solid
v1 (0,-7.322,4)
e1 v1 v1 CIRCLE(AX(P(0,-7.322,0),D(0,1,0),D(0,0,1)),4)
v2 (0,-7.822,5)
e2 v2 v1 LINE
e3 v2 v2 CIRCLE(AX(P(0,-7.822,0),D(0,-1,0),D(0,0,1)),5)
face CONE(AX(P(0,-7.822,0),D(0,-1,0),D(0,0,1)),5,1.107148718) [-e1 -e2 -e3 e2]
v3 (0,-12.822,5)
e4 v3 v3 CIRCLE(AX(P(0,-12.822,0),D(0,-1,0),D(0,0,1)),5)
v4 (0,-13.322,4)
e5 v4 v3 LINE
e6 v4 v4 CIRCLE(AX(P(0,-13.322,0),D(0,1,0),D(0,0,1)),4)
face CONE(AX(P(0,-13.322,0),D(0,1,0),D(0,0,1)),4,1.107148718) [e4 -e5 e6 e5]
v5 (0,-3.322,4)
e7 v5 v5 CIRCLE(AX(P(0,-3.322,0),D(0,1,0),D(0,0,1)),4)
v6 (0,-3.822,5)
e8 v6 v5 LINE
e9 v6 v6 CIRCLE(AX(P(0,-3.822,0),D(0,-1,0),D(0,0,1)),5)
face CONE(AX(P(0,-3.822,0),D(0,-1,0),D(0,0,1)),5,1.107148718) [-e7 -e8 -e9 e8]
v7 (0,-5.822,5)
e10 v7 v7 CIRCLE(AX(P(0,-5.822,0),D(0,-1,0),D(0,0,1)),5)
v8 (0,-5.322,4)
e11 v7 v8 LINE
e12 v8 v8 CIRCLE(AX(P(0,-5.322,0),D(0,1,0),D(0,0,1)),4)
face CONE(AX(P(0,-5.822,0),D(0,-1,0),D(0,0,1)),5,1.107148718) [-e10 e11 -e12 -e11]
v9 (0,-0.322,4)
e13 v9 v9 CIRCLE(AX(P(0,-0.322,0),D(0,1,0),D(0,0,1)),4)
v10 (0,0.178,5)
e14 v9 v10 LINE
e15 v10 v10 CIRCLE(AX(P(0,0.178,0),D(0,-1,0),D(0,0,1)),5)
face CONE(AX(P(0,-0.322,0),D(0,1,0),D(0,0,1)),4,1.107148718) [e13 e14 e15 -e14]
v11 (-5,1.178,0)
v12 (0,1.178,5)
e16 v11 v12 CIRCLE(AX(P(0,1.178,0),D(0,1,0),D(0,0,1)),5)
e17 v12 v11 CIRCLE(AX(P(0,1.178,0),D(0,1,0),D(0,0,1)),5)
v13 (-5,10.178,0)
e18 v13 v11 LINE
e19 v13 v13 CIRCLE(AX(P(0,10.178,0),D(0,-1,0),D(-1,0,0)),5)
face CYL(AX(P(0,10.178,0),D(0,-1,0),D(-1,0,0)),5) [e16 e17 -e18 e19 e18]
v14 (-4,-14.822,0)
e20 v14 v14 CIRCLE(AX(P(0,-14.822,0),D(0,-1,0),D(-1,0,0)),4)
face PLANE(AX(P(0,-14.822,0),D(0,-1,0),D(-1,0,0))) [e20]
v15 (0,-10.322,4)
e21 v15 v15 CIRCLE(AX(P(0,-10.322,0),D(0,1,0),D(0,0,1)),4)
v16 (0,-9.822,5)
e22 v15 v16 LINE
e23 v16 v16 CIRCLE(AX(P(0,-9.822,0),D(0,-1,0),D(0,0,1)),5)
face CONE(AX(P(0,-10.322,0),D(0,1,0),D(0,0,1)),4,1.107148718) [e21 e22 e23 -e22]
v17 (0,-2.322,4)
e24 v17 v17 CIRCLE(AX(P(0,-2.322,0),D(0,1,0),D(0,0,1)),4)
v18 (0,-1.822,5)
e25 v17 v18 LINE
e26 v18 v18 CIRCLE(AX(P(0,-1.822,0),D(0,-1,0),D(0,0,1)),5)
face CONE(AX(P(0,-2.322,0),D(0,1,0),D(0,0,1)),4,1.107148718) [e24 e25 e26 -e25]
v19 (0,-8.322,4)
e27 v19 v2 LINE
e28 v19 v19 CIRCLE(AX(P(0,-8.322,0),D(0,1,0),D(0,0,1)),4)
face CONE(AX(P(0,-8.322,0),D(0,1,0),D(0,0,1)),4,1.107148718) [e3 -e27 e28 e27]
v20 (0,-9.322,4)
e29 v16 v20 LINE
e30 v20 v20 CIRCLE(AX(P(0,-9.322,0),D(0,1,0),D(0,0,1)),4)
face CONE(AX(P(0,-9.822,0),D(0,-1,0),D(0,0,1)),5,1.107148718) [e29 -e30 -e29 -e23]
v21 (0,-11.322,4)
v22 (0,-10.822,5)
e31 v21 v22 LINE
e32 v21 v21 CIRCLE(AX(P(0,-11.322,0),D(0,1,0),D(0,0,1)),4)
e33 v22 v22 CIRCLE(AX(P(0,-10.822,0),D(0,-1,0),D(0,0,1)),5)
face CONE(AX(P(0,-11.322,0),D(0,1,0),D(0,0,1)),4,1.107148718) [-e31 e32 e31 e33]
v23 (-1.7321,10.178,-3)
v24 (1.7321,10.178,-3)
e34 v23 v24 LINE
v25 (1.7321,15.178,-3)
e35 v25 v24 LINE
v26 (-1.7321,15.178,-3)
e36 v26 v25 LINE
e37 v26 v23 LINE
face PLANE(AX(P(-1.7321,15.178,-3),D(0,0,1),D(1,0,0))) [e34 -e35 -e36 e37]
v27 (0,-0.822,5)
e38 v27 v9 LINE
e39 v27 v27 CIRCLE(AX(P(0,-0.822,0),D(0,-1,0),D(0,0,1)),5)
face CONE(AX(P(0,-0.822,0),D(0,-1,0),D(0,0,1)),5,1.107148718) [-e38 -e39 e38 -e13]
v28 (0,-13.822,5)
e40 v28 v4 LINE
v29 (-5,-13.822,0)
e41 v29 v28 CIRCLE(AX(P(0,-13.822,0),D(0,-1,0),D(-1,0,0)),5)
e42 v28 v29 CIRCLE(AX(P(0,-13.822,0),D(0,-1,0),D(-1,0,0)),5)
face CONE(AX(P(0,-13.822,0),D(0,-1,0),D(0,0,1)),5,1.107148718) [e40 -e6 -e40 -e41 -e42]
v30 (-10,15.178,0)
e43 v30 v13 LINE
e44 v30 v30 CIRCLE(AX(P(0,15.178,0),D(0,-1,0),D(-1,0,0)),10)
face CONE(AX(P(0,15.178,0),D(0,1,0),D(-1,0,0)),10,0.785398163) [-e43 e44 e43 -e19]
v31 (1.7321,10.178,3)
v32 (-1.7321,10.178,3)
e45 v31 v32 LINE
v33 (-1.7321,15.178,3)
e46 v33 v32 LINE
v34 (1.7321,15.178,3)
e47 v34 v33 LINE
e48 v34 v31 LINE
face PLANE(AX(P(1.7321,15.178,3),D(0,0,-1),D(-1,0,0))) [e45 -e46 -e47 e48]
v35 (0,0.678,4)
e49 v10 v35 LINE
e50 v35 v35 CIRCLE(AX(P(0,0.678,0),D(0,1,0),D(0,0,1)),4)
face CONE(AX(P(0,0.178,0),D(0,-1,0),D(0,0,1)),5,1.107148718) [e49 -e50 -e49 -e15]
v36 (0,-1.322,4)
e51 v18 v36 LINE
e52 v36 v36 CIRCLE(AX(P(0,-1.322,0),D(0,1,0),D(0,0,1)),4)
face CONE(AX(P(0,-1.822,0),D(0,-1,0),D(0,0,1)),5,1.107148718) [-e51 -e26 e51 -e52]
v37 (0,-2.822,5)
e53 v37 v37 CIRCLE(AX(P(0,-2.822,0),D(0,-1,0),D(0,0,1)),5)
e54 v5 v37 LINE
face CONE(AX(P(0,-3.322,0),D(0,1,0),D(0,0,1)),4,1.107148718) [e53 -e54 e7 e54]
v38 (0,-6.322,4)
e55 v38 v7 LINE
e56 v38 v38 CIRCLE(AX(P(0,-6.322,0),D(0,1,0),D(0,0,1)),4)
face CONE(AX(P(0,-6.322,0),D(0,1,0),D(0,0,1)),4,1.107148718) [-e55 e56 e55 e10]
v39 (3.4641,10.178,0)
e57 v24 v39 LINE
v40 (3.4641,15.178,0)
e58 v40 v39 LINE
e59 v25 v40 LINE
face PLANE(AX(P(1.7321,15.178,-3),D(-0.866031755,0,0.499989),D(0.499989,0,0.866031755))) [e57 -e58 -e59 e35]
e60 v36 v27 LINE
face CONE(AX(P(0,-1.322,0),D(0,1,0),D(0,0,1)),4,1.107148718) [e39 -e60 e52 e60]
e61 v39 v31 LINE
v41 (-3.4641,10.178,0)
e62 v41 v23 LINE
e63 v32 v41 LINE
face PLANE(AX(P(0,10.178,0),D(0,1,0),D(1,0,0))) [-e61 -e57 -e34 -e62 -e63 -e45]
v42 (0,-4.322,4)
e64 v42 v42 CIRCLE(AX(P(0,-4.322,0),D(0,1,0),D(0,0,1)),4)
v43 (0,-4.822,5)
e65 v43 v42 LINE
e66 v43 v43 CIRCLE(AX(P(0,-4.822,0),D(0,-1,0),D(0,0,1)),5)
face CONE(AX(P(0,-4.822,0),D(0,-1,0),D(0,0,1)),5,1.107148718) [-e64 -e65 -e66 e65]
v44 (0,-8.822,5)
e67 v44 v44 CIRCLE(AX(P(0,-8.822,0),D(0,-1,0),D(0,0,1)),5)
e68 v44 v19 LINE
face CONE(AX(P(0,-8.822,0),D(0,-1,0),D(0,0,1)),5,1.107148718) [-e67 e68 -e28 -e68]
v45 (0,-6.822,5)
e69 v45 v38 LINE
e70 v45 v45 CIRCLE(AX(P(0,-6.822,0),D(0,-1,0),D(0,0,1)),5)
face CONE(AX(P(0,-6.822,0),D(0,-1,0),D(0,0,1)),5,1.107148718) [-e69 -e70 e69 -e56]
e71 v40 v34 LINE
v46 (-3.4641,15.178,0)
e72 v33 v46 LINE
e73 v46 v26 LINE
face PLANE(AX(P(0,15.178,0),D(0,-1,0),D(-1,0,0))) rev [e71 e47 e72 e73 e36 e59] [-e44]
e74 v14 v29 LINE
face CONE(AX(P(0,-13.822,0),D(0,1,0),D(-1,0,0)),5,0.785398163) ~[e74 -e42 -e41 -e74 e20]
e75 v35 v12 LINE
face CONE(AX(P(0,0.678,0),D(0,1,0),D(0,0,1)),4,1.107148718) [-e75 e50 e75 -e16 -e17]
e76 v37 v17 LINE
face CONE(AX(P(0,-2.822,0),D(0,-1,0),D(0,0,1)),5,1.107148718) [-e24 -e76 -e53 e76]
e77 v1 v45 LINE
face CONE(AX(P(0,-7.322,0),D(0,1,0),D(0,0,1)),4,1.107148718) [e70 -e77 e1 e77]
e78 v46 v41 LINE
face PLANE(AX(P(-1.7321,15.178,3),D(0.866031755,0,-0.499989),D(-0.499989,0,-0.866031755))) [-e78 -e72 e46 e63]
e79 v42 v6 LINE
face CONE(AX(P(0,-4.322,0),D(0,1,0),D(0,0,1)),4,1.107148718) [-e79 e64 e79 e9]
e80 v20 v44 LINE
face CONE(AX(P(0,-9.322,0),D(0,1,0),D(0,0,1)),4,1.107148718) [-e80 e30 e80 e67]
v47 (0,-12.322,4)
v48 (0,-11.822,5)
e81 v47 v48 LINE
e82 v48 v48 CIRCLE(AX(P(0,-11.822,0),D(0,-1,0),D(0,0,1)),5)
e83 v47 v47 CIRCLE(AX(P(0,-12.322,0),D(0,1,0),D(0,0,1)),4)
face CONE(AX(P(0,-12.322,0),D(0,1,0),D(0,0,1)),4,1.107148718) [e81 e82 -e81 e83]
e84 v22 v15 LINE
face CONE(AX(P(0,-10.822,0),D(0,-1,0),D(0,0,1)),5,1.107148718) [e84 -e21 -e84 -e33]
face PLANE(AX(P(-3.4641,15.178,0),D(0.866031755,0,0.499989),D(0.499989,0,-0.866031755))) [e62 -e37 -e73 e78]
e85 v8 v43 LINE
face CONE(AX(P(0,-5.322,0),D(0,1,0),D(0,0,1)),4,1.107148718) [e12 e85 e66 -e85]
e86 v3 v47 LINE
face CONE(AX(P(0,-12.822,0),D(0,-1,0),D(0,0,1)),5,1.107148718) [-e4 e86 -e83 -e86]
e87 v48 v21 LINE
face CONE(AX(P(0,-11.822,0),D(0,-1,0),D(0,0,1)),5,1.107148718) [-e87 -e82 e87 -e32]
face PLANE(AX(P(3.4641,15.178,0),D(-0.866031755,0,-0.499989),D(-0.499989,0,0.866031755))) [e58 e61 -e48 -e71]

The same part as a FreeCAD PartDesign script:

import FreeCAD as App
import Part
import Sketcher

V = App.Vector
Q = App.Units.Quantity


def edges_at(feature, points):
    """Names of the edges that pass closest to the given points."""
    edges = feature.Shape.Edges
    near = lambda p: min(range(len(edges)), key=lambda i: edges[i].distToShape(Part.Vertex(*p))[0])
    return sorted({f"Edge{near(p) + 1}" for p in points})

doc = App.newDocument("Part")
params = doc.addObject("Spreadsheet::Sheet", "Params")
for row, (alias, value) in enumerate([
    ("sketch1_width", "10 mm"),
    ("sketch1_height", "30 mm"),
    ("sketch1_width2", "5 mm"),
    ("revolution_angle", "360 deg"),
    ("chamfer_size", "1 mm"),
    ("sketch2_width", "1 mm"),
    ("groove_angle", "360 deg"),
    ("linearpattern_pitch", "1 mm"),
    ("pocket1_length", "5 mm"),
], start=1):
    params.set(f"A{row}", alias)
    params.set(f"B{row}", "=" + value)
    params.setAlias(f"B{row}", alias)

body = doc.addObject("PartDesign::Body", "Body")

# Sketch on XY plane
sketch1 = body.newObject("Sketcher::SketchObject", "Sketch")
sketch1.AttachmentSupport = (doc.getObject("XY_Plane"), [""])
sketch1.MapMode = "FlatFace"
sketch1.addGeometry(Part.LineSegment(V(0, -14.822, 0), V(0, 15.178, 0)), False)
sketch1.addGeometry(Part.LineSegment(V(0, 15.178, 0), V(-10, 15.178, 0)), False)
sketch1.addGeometry(Part.LineSegment(V(-10, 15.178, 0), V(-5, 10.178, 0)), False)
sketch1.addGeometry(Part.LineSegment(V(-5, 10.178, 0), V(-5, -14.822, 0)), False)
sketch1.addGeometry(Part.LineSegment(V(-5, -14.822, 0), V(0, -14.822, 0)), False)
sketch1.addConstraint(Sketcher.Constraint("Coincident", 0, 2, 1, 1))
sketch1.addConstraint(Sketcher.Constraint("Coincident", 1, 2, 2, 1))
sketch1.addConstraint(Sketcher.Constraint("Coincident", 2, 2, 3, 1))
sketch1.addConstraint(Sketcher.Constraint("Coincident", 3, 2, 4, 1))
sketch1.addConstraint(Sketcher.Constraint("Coincident", 4, 2, 0, 1))
sketch1.addConstraint(Sketcher.Constraint("Vertical", 0))
sketch1.addConstraint(Sketcher.Constraint("Horizontal", 1))
sketch1.addConstraint(Sketcher.Constraint("Vertical", 3))
sketch1.addConstraint(Sketcher.Constraint("Horizontal", 4))
sketch1.addConstraint(Sketcher.Constraint("PointOnObject", 0, 2, -2))
sketch1.addConstraint(Sketcher.Constraint("DistanceX", 1, 2, 1, 1, Q("10 mm")))
sketch1.addConstraint(Sketcher.Constraint("DistanceY", 0, 1, 0, 2, Q("30 mm")))
sketch1.addConstraint(Sketcher.Constraint("Angle", 2, Q("-45 deg")))
sketch1.addConstraint(Sketcher.Constraint("DistanceX", 4, 1, 4, 2, Q("5 mm")))
sketch1.addConstraint(Sketcher.Constraint("DistanceY", -1, 1, 0, 2, Q("15.178 mm")))
sketch1.setExpression("Constraints[10]", "Params.sketch1_width")
sketch1.setExpression("Constraints[11]", "Params.sketch1_height")
sketch1.setExpression("Constraints[13]", "Params.sketch1_width2")
revolution = body.newObject("PartDesign::Revolution", "Revolution")
revolution.Profile = sketch1
revolution.ReferenceAxis = (sketch1, ["V_Axis"])
revolution.setExpression("Angle", "Params.revolution_angle")
doc.recompute()

chamfer = body.newObject("PartDesign::Chamfer", "Chamfer")
chamfer.Base = (revolution, edges_at(revolution, [(5, -14.822, 0)]))
chamfer.setExpression("Size", "Params.chamfer_size")

# Sketch on YZ plane
sketch2 = body.newObject("Sketcher::SketchObject", "Sketch001")
sketch2.AttachmentSupport = (doc.getObject("YZ_Plane"), [""])
sketch2.MapMode = "FlatFace"
sketch2.addGeometry(Part.LineSegment(V(-12.822, 5, 0), V(-13.822, 5, 0)), False)
sketch2.addGeometry(Part.LineSegment(V(-13.822, 5, 0), V(-13.322, 4, 0)), False)
sketch2.addGeometry(Part.LineSegment(V(-13.322, 4, 0), V(-12.822, 5, 0)), False)
sketch2.addConstraint(Sketcher.Constraint("Coincident", 0, 2, 1, 1))
sketch2.addConstraint(Sketcher.Constraint("Coincident", 1, 2, 2, 1))
sketch2.addConstraint(Sketcher.Constraint("Coincident", 2, 2, 0, 1))
sketch2.addConstraint(Sketcher.Constraint("Horizontal", 0))
sketch2.addConstraint(Sketcher.Constraint("Equal", 1, 2))
sketch2.addConstraint(Sketcher.Constraint("DistanceX", 0, 2, 0, 1, Q("1 mm")))
sketch2.addConstraint(Sketcher.Constraint("DistanceY", 1, 2, 0, 2, Q("1 mm")))
sketch2.addConstraint(Sketcher.Constraint("DistanceY", -1, 1, 0, 2, Q("5 mm")))
sketch2.addConstraint(Sketcher.Constraint("DistanceX", 0, 2, -1, 1, Q("13.822 mm")))
sketch2.setExpression("Constraints[5]", "Params.sketch2_width")
groove = body.newObject("PartDesign::Groove", "Groove")
groove.Profile = sketch2
groove.ReferenceAxis = (sketch2, ["H_Axis"])
groove.setExpression("Angle", "Params.groove_angle")
doc.recompute()

linearpattern = body.newObject("PartDesign::LinearPattern", "LinearPattern")
linearpattern.Originals = [groove]
linearpattern.Direction = (doc.getObject("Y_Axis"), [""])
linearpattern.Mode = "offset"
linearpattern.setExpression("Offset", "Params.linearpattern_pitch")
linearpattern.Occurrences = 15
body.Tip = linearpattern

# Sketch on XZ plane
sketch3 = body.newObject("Sketcher::SketchObject", "Sketch002")
sketch3.AttachmentSupport = (doc.getObject("XZ_Plane"), [""])
sketch3.MapMode = "FlatFace"
sketch3.AttachmentOffset = App.Placement(V(0, 0, -15.178), App.Rotation())
sketch3.addGeometry(Part.LineSegment(V(-1.7321, 3, 0), V(1.7321, 3, 0)), False)
sketch3.addGeometry(Part.LineSegment(V(1.7321, 3, 0), V(3.4641, 0, 0)), False)
sketch3.addGeometry(Part.LineSegment(V(3.4641, 0, 0), V(1.7321, -3, 0)), False)
sketch3.addGeometry(Part.LineSegment(V(1.7321, -3, 0), V(-1.7321, -3, 0)), False)
sketch3.addGeometry(Part.LineSegment(V(-1.7321, -3, 0), V(-3.4641, 0, 0)), False)
sketch3.addGeometry(Part.LineSegment(V(-3.4641, 0, 0), V(-1.7321, 3, 0)), False)
sketch3.addConstraint(Sketcher.Constraint("Coincident", 0, 2, 1, 1))
sketch3.addConstraint(Sketcher.Constraint("Coincident", 1, 2, 2, 1))
sketch3.addConstraint(Sketcher.Constraint("Coincident", 2, 2, 3, 1))
sketch3.addConstraint(Sketcher.Constraint("Coincident", 3, 2, 4, 1))
sketch3.addConstraint(Sketcher.Constraint("Coincident", 4, 2, 5, 1))
sketch3.addConstraint(Sketcher.Constraint("Coincident", 5, 2, 0, 1))
sketch3.addConstraint(Sketcher.Constraint("Horizontal", 0))
sketch3.addConstraint(Sketcher.Constraint("Horizontal", 3))
sketch3.addConstraint(Sketcher.Constraint("Symmetric", 0, 2, 3, 2, -1, 1))
sketch3.addConstraint(Sketcher.Constraint("Symmetric", 1, 2, 4, 2, -1, 1))
sketch3.addConstraint(Sketcher.Constraint("PointOnObject", 1, 2, -1))
sketch3.addConstraint(Sketcher.Constraint("Parallel", 2, 5))
sketch3.addConstraint(Sketcher.Constraint("Vertical", 0, 2, 2, 2))
sketch3.addConstraint(Sketcher.Constraint("DistanceY", 2, 2, 0, 2, Q("6 mm")))
sketch3.addConstraint(Sketcher.Constraint("Angle", 1, Q("-60.0007 deg")))
sketch3.addConstraint(Sketcher.Constraint("DistanceX", 0, 1, 0, 2, Q("3.4642 mm")))
pocket1 = body.newObject("PartDesign::Pocket", "Pocket")
pocket1.Profile = sketch3
pocket1.setExpression("Length", "Params.pocket1_length")
pocket1.Reversed = True

doc.recompute()
